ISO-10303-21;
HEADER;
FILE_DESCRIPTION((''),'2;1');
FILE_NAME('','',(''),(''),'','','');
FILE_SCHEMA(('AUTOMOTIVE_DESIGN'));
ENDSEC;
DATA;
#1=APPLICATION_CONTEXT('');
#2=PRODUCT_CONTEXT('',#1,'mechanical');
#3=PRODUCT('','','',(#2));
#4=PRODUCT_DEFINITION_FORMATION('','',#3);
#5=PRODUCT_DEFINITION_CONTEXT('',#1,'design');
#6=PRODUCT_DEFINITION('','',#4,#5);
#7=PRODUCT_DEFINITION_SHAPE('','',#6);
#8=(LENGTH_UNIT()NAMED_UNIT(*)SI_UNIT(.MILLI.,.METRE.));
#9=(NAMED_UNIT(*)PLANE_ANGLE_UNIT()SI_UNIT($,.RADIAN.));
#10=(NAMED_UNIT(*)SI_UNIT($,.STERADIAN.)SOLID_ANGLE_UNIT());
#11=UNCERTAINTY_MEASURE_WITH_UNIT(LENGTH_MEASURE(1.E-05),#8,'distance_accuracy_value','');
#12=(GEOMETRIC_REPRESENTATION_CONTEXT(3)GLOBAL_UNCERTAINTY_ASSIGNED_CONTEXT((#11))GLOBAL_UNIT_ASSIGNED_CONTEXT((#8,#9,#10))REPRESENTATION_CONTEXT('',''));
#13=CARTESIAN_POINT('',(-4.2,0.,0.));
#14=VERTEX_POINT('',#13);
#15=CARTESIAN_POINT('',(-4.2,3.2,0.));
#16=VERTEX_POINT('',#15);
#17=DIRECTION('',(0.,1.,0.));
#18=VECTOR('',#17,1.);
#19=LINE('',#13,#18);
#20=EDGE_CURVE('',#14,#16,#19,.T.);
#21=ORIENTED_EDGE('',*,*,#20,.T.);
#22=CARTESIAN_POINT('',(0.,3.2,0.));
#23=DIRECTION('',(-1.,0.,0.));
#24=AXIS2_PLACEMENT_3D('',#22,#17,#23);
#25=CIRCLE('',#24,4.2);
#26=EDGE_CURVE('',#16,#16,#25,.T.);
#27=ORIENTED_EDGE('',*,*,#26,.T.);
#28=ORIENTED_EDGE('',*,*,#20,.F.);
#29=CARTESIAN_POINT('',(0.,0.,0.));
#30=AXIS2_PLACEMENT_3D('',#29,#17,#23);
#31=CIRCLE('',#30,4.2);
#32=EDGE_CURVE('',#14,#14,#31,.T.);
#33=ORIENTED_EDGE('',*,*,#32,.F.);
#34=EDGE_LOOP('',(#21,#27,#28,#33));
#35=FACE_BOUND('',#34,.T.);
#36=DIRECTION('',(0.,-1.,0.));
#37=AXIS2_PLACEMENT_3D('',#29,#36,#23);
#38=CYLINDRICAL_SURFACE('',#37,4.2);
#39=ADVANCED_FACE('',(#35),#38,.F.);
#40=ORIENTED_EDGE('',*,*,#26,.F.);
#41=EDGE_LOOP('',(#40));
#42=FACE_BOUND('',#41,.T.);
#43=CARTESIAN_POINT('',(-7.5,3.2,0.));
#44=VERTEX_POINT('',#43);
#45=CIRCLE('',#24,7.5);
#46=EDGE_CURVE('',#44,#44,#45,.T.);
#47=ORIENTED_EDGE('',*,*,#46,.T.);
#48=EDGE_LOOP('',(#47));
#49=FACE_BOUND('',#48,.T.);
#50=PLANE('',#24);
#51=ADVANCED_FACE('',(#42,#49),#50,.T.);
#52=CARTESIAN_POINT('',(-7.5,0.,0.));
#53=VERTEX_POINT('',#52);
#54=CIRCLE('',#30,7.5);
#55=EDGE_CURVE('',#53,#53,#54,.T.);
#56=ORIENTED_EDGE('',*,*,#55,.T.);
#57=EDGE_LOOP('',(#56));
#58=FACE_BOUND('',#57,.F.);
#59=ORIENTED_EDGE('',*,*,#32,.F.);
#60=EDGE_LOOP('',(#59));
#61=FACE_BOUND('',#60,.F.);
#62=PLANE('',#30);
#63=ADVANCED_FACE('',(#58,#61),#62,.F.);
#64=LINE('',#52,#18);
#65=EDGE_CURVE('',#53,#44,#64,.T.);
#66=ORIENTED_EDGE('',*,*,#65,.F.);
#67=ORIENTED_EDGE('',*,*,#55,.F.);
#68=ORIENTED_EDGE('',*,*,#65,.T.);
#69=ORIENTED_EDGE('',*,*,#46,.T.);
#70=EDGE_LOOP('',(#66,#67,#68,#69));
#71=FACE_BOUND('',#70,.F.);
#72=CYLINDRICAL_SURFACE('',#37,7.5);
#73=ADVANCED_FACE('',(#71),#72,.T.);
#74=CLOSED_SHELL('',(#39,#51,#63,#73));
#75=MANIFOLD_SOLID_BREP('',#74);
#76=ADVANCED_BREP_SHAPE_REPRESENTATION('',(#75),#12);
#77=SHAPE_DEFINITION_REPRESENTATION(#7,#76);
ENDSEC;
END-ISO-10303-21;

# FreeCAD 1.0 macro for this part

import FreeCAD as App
import Part
import Sketcher

V = App.Vector

doc = App.newDocument("Part")
body = doc.addObject("PartDesign::Body", "Body")

# Sketch on XZ plane
sketch1 = body.newObject("Sketcher::SketchObject", "Sketch")
sketch1.AttachmentSupport = (doc.getObject("XZ_Plane"), [""])
sketch1.MapMode = "FlatFace"
sketch1.addGeometry([
    Part.Circle(V(0, 0, 0), V(0, 0, 1), 7.5),
    Part.Circle(V(0, 0, 0), V(0, 0, 1), 4.2),
], False)
sketch1.addConstraint([
    Sketcher.Constraint("Coincident", 0, 3, -1, 1),
    Sketcher.Constraint("Coincident", 1, 3, -1, 1),
    Sketcher.Constraint("Diameter", 0, 15.0),
    Sketcher.Constraint("Diameter", 1, 8.4),
])
pad1 = body.newObject("PartDesign::Pad", "Pad")
pad1.Profile = sketch1
pad1.Length = 3.2
pad1.Reversed = True

doc.recompute()
